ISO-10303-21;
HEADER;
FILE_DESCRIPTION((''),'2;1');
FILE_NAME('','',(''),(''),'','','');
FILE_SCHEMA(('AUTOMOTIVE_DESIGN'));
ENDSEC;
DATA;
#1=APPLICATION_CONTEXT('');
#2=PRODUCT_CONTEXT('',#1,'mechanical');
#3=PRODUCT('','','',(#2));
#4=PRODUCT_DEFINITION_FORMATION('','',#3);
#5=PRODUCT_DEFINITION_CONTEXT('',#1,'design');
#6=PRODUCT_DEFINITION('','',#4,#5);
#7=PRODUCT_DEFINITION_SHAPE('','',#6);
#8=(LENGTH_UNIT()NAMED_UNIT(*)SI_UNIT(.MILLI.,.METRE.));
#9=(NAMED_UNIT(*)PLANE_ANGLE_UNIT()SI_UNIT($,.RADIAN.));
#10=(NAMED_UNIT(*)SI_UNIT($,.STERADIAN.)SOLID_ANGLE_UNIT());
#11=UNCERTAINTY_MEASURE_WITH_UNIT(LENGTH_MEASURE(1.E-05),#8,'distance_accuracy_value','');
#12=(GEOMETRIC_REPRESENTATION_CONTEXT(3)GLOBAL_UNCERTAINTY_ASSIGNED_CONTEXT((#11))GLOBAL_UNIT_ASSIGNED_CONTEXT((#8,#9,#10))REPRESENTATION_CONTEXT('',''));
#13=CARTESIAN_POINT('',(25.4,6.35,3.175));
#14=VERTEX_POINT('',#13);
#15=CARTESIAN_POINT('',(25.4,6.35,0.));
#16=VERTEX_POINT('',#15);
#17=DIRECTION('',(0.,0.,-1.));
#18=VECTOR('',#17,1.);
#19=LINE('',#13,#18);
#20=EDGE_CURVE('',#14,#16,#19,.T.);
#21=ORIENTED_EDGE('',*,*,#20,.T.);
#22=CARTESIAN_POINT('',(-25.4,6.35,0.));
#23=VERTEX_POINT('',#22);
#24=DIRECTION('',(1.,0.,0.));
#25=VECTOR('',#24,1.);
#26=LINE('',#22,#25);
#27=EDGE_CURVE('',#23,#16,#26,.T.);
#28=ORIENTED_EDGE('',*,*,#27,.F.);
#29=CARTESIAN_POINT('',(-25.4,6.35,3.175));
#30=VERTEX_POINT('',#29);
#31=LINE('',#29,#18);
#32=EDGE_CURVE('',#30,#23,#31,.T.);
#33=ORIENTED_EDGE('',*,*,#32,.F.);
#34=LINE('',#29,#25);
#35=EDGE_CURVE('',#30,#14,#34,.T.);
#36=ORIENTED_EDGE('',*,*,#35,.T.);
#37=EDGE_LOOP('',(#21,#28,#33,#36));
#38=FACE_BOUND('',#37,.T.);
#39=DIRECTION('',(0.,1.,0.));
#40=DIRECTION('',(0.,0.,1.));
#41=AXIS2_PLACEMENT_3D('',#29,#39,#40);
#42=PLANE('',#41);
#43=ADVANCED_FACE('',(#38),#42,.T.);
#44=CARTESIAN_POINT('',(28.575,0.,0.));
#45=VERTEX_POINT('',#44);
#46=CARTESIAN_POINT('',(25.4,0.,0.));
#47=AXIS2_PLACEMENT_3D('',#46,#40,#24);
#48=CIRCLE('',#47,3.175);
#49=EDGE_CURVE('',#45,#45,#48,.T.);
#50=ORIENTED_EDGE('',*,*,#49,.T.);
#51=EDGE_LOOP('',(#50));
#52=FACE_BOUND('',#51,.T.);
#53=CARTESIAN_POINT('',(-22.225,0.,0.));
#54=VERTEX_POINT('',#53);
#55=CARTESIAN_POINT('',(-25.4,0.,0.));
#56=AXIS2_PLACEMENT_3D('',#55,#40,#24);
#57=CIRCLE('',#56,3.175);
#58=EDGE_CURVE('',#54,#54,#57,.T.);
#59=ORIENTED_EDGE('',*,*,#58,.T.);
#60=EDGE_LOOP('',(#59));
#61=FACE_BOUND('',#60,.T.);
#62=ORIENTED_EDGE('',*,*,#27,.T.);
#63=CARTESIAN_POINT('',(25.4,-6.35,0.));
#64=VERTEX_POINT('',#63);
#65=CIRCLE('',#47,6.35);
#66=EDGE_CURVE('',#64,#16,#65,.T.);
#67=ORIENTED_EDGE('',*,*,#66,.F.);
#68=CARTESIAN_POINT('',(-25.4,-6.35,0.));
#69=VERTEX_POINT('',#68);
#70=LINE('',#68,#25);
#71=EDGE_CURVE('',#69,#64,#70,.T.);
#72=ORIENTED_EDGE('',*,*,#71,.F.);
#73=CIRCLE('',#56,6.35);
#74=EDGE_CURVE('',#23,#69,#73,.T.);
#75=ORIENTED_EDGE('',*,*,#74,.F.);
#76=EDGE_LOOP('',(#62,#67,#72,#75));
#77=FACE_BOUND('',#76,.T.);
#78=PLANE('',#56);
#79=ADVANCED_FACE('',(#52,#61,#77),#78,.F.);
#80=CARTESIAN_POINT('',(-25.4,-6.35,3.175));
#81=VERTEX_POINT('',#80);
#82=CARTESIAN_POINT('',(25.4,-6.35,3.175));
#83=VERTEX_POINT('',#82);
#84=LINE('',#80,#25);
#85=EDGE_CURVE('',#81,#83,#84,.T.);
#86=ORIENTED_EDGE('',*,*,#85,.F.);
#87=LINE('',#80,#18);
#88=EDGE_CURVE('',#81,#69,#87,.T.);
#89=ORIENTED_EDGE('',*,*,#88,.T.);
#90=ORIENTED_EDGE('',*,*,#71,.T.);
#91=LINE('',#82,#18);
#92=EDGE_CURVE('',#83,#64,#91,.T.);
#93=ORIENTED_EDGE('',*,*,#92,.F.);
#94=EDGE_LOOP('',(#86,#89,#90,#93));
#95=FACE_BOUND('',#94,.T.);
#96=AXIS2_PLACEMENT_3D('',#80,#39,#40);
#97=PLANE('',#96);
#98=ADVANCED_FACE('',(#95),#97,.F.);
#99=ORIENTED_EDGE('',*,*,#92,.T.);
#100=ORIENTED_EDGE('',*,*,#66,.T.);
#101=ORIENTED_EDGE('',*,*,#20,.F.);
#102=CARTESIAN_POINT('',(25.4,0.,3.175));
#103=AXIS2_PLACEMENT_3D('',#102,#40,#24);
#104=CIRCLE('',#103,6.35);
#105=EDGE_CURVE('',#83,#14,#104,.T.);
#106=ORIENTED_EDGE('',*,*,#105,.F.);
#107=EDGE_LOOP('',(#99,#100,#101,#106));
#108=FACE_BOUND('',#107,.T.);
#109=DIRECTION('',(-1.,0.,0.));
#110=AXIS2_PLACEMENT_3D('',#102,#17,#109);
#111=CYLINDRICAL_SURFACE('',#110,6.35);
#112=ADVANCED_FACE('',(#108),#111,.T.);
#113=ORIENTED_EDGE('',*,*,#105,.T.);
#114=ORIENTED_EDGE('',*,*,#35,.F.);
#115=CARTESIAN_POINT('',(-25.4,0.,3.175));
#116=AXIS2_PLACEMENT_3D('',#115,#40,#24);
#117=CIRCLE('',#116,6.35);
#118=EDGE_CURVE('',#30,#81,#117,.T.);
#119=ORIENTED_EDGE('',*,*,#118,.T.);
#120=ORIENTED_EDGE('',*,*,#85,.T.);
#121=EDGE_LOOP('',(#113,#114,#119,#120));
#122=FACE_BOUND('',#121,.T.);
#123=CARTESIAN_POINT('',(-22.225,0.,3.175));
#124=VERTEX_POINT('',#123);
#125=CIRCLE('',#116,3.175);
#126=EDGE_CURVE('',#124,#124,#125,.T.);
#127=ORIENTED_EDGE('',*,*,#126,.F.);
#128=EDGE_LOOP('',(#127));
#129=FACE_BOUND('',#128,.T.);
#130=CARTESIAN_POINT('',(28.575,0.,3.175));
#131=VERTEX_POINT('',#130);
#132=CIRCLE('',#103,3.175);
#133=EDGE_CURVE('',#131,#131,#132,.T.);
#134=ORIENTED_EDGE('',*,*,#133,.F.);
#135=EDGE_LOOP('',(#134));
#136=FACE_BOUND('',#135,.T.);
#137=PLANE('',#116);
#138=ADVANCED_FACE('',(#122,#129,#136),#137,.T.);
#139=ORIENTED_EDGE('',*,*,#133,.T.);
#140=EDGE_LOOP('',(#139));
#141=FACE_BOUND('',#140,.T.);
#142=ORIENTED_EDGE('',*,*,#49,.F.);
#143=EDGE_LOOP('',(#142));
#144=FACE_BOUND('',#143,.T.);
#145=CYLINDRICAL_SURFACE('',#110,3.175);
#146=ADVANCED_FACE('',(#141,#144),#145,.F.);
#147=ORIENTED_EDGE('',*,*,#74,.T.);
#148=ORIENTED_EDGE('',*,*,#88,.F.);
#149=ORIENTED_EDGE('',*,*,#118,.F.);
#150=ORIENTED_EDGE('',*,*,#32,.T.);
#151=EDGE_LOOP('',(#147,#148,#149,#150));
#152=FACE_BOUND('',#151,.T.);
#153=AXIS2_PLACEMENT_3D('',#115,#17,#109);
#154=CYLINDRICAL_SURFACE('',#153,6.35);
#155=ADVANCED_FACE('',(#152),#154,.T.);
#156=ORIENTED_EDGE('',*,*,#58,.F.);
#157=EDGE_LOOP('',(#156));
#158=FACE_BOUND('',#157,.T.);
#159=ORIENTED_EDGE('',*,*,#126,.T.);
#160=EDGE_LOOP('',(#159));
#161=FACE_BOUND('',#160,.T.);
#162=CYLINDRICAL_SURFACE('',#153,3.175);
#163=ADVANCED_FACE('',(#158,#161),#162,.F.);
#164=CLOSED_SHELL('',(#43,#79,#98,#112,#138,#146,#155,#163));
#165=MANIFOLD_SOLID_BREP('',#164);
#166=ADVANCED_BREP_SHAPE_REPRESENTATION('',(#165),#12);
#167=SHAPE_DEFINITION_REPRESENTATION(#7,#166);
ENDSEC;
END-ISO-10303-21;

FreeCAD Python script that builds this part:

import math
import FreeCAD as App
import Part
import Sketcher
from FreeCAD import Vector
Q = App.Units.Quantity

doc = App.newDocument("Part")
params = doc.addObject("Spreadsheet::Sheet", "Params")
for row, (alias, value) in enumerate([
    ("sketch1_diameter", "0.25 in"),
    ("sketch1_width", "2 in"),
    ("sketch1_radius", "0.25 in"),
    ("pad1_length", "0.125 in"),
], start=1):
    params.set(f"A{row}", alias)
    params.set(f"B{row}", "=" + value)
    params.setAlias(f"B{row}", alias)

body = doc.addObject("PartDesign::Body", "Body")

# Sketch on XY plane
sketch1 = body.newObject("Sketcher::SketchObject", "Sketch")
sketch1.AttachmentSupport = (doc.getObject("XY_Plane"), [""])
sketch1.MapMode = "FlatFace"
sketch1.addGeometry(Part.LineSegment(Vector(25.4, 6.3, 0), Vector(-25.4, 6.3, 0)), False)
sketch1.addGeometry(Part.ArcOfCircle(Part.Circle(Vector(-25.4, 0, 0), Vector(0, 0, 1), 6.3), math.radians(90), math.radians(270)), False)
sketch1.addGeometry(Part.LineSegment(Vector(-25.4, -6.3, 0), Vector(25.4, -6.3, 0)), False)
sketch1.addGeometry(Part.ArcOfCircle(Part.Circle(Vector(25.4, 0, 0), Vector(0, 0, 1), 6.3), math.radians(-90), math.radians(90)), False)
sketch1.addGeometry(Part.Circle(Vector(25.4, 0, 0), Vector(0, 0, 1), 3.2), False)
sketch1.addGeometry(Part.Circle(Vector(-25.4, 0, 0), Vector(0, 0, 1), 3.2), False)
sketch1.addConstraint(Sketcher.Constraint("Tangent", 0, 2, 1, 1))
sketch1.addConstraint(Sketcher.Constraint("Tangent", 1, 2, 2, 1))
sketch1.addConstraint(Sketcher.Constraint("Tangent", 2, 2, 3, 1))
sketch1.addConstraint(Sketcher.Constraint("Tangent", 3, 2, 0, 1))
sketch1.addConstraint(Sketcher.Constraint("Horizontal", 0))
sketch1.addConstraint(Sketcher.Constraint("Horizontal", 2))
sketch1.addConstraint(Sketcher.Constraint("Coincident", 4, 3, 3, 3))
sketch1.addConstraint(Sketcher.Constraint("Coincident", 5, 3, 1, 3))
sketch1.addConstraint(Sketcher.Constraint("Equal", 4, 5))
sketch1.addConstraint(Sketcher.Constraint("Symmetric", 1, 3, 3, 3, -1, 1))
sketch1.addConstraint(Sketcher.Constraint("Diameter", 4, Q("0.25 in")))
sketch1.addConstraint(Sketcher.Constraint("DistanceX", 0, 2, 0, 1, Q("2 in")))
sketch1.addConstraint(Sketcher.Constraint("Radius", 1, Q("0.25 in")))
sketch1.setExpression("Constraints[10]", "Params.sketch1_diameter")
sketch1.setExpression("Constraints[11]", "Params.sketch1_width")
sketch1.setExpression("Constraints[12]", "Params.sketch1_radius")
pad1 = body.newObject("PartDesign::Pad", "Pad")
pad1.Profile = sketch1
pad1.setExpression("Length", "Params.pad1_length")

doc.recompute()
